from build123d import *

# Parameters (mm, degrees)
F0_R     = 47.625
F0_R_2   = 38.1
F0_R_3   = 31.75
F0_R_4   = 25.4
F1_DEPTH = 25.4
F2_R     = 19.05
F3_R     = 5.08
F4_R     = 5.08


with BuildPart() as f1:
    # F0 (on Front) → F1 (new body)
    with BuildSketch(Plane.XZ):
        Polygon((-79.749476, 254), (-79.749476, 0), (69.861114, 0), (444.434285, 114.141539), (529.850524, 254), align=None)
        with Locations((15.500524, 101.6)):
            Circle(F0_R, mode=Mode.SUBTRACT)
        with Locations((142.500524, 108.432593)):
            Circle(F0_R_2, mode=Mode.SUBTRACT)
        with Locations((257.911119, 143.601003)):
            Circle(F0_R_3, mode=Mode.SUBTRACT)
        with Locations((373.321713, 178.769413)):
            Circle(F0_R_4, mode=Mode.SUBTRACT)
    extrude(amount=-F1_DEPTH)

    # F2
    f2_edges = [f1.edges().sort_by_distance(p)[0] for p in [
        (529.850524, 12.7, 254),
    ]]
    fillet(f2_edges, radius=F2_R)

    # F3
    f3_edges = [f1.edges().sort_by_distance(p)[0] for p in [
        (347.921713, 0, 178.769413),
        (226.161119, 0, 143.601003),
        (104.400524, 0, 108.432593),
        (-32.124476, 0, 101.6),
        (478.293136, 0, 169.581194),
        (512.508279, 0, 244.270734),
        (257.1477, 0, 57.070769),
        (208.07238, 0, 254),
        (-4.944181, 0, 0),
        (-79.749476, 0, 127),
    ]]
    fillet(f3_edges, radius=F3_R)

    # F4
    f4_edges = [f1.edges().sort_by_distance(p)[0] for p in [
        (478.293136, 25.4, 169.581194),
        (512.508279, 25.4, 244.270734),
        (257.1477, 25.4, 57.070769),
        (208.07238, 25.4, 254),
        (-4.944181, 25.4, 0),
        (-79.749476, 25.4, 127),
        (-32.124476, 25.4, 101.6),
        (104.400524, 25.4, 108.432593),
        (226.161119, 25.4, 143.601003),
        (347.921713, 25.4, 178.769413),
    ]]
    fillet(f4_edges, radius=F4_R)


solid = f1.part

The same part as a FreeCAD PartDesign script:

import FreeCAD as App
import Part
import Sketcher

V = App.Vector
Q = App.Units.Quantity


def edges_at(feature, points):
    """Names of the edges that pass closest to the given points."""
    edges = feature.Shape.Edges
    near = lambda p: min(range(len(edges)), key=lambda i: edges[i].distToShape(Part.Vertex(*p))[0])
    return sorted({f"Edge{near(p) + 1}" for p in points})


def add_polygon(sketch, points):
    """Adds a closed chain of lines whose ends are joined by coincident constraints."""
    first, n = sketch.GeometryCount, len(points)
    for a, b in zip(points, points[1:] + points[:1]):
        sketch.addGeometry(Part.LineSegment(App.Vector(*a, 0), App.Vector(*b, 0)), False)
    for i in range(n):
        sketch.addConstraint(Sketcher.Constraint("Coincident", first + i, 2, first + (i + 1) % n, 1))

doc = App.newDocument("Part")
body = doc.addObject("PartDesign::Body", "Body")

# Sketch on XZ plane
sketch1 = body.newObject("Sketcher::SketchObject", "Sketch")
sketch1.AttachmentSupport = (doc.getObject("XZ_Plane"), [""])
sketch1.MapMode = "FlatFace"
add_polygon(sketch1, [(-79.749476, 254), (-79.749476, 0), (69.861114, 0), (444.434285, 114.141539), (529.850524, 254)])  # lines 0-4
sketch1.addGeometry(Part.Circle(V(15.500524, 101.6, 0), V(0, 0, 1), 47.625), False)  # 5
sketch1.addGeometry(Part.Circle(V(142.500524, 108.432593, 0), V(0, 0, 1), 38.1), False)  # 6
sketch1.addGeometry(Part.Circle(V(257.911119, 143.601003, 0), V(0, 0, 1), 31.75), False)  # 7
sketch1.addGeometry(Part.Circle(V(373.321713, 178.769413, 0), V(0, 0, 1), 25.4), False)  # 8
sketch1.addConstraint([
    Sketcher.Constraint("Vertical", 0),
    Sketcher.Constraint("Horizontal", 1),
    Sketcher.Constraint("Horizontal", 4),
    Sketcher.Constraint("PointOnObject", 0, 2, -1),
    Sketcher.Constraint("Diameter", 6, Q("3 in")),
    Sketcher.Constraint("Diameter", 8, Q("2 in")),
    Sketcher.Constraint("Diameter", 7, Q("2.5 in")),
    Sketcher.Constraint("Diameter", 5, Q("3.75 in")),
    Sketcher.Constraint("DistanceX", 4, 2, 4, 1, Q("24 in")),
    Sketcher.Constraint("DistanceY", 0, 2, 0, 1, Q("10 in")),
    Sketcher.Constraint("DistanceY", -1, 1, 5, 3, Q("4 in")),
    Sketcher.Constraint("DistanceX", 5, 3, 6, 3, Q("5 in")),
    Sketcher.Constraint("DistanceX", 0, 2, 5, 3, Q("3.75 in")),
    Sketcher.Constraint("DistanceX", 1, 1, 1, 2, Q("149.61059 mm")),
    Sketcher.Constraint("DistanceX", 1, 2, 8, 3, Q("303.460599 mm")),
    Sketcher.Constraint("Distance", 3, Q("163.878989 mm")),
    Sketcher.Constraint("DistanceX", -1, 1, 7, 3, Q("257.911119 mm")),
    Sketcher.Constraint("DistanceY", -1, 1, 2, 2, Q("114.141539 mm")),
    Sketcher.Constraint("DistanceY", 6, 3, 7, 3, Q("35.16841 mm")),
    Sketcher.Constraint("DistanceY", 7, 3, 8, 3, Q("35.16841 mm")),
    Sketcher.Constraint("DistanceX", -1, 1, 5, 3, Q("15.500524 mm")),
    Sketcher.Constraint("DistanceY", -1, 1, 6, 3, Q("108.432593 mm")),
])
pad1 = body.newObject("PartDesign::Pad", "Pad")
pad1.Profile = sketch1
pad1.Length = Q("1 in")
pad1.Reversed = True
doc.recompute()

fillet = body.newObject("PartDesign::Fillet", "Fillet")
fillet.Base = (pad1, edges_at(pad1, [(529.851, 12.7, 254)]))
fillet.Radius = Q("0.75 in")
doc.recompute()

fillet2 = body.newObject("PartDesign::Fillet", "Fillet001")
fillet2.Base = (fillet, edges_at(fillet, [
    (347.922, 0, 178.769),
    (226.161, 0, 143.601),
    (104.401, 0, 108.433),
    (-32.124, 0, 101.6),
    (478.293, 0, 169.581),
    (512.508, 0, 244.271),
    (257.148, 0, 57.071),
    (208.072, 0, 254),
    (-4.944, 0, 0),
    (-79.749, 0, 127),
]))
fillet2.Radius = Q("0.2 in")
doc.recompute()

fillet3 = body.newObject("PartDesign::Fillet", "Fillet002")
fillet3.Base = (fillet2, edges_at(fillet2, [
    (478.293, 25.4, 169.581),
    (512.508, 25.4, 244.271),
    (257.148, 25.4, 57.071),
    (208.072, 25.4, 254),
    (-4.944, 25.4, 0),
    (-79.749, 25.4, 127),
    (-32.124, 25.4, 101.6),
    (104.401, 25.4, 108.433),
    (226.161, 25.4, 143.601),
    (347.922, 25.4, 178.769),
]))
fillet3.Radius = Q("0.2 in")

doc.recompute()
